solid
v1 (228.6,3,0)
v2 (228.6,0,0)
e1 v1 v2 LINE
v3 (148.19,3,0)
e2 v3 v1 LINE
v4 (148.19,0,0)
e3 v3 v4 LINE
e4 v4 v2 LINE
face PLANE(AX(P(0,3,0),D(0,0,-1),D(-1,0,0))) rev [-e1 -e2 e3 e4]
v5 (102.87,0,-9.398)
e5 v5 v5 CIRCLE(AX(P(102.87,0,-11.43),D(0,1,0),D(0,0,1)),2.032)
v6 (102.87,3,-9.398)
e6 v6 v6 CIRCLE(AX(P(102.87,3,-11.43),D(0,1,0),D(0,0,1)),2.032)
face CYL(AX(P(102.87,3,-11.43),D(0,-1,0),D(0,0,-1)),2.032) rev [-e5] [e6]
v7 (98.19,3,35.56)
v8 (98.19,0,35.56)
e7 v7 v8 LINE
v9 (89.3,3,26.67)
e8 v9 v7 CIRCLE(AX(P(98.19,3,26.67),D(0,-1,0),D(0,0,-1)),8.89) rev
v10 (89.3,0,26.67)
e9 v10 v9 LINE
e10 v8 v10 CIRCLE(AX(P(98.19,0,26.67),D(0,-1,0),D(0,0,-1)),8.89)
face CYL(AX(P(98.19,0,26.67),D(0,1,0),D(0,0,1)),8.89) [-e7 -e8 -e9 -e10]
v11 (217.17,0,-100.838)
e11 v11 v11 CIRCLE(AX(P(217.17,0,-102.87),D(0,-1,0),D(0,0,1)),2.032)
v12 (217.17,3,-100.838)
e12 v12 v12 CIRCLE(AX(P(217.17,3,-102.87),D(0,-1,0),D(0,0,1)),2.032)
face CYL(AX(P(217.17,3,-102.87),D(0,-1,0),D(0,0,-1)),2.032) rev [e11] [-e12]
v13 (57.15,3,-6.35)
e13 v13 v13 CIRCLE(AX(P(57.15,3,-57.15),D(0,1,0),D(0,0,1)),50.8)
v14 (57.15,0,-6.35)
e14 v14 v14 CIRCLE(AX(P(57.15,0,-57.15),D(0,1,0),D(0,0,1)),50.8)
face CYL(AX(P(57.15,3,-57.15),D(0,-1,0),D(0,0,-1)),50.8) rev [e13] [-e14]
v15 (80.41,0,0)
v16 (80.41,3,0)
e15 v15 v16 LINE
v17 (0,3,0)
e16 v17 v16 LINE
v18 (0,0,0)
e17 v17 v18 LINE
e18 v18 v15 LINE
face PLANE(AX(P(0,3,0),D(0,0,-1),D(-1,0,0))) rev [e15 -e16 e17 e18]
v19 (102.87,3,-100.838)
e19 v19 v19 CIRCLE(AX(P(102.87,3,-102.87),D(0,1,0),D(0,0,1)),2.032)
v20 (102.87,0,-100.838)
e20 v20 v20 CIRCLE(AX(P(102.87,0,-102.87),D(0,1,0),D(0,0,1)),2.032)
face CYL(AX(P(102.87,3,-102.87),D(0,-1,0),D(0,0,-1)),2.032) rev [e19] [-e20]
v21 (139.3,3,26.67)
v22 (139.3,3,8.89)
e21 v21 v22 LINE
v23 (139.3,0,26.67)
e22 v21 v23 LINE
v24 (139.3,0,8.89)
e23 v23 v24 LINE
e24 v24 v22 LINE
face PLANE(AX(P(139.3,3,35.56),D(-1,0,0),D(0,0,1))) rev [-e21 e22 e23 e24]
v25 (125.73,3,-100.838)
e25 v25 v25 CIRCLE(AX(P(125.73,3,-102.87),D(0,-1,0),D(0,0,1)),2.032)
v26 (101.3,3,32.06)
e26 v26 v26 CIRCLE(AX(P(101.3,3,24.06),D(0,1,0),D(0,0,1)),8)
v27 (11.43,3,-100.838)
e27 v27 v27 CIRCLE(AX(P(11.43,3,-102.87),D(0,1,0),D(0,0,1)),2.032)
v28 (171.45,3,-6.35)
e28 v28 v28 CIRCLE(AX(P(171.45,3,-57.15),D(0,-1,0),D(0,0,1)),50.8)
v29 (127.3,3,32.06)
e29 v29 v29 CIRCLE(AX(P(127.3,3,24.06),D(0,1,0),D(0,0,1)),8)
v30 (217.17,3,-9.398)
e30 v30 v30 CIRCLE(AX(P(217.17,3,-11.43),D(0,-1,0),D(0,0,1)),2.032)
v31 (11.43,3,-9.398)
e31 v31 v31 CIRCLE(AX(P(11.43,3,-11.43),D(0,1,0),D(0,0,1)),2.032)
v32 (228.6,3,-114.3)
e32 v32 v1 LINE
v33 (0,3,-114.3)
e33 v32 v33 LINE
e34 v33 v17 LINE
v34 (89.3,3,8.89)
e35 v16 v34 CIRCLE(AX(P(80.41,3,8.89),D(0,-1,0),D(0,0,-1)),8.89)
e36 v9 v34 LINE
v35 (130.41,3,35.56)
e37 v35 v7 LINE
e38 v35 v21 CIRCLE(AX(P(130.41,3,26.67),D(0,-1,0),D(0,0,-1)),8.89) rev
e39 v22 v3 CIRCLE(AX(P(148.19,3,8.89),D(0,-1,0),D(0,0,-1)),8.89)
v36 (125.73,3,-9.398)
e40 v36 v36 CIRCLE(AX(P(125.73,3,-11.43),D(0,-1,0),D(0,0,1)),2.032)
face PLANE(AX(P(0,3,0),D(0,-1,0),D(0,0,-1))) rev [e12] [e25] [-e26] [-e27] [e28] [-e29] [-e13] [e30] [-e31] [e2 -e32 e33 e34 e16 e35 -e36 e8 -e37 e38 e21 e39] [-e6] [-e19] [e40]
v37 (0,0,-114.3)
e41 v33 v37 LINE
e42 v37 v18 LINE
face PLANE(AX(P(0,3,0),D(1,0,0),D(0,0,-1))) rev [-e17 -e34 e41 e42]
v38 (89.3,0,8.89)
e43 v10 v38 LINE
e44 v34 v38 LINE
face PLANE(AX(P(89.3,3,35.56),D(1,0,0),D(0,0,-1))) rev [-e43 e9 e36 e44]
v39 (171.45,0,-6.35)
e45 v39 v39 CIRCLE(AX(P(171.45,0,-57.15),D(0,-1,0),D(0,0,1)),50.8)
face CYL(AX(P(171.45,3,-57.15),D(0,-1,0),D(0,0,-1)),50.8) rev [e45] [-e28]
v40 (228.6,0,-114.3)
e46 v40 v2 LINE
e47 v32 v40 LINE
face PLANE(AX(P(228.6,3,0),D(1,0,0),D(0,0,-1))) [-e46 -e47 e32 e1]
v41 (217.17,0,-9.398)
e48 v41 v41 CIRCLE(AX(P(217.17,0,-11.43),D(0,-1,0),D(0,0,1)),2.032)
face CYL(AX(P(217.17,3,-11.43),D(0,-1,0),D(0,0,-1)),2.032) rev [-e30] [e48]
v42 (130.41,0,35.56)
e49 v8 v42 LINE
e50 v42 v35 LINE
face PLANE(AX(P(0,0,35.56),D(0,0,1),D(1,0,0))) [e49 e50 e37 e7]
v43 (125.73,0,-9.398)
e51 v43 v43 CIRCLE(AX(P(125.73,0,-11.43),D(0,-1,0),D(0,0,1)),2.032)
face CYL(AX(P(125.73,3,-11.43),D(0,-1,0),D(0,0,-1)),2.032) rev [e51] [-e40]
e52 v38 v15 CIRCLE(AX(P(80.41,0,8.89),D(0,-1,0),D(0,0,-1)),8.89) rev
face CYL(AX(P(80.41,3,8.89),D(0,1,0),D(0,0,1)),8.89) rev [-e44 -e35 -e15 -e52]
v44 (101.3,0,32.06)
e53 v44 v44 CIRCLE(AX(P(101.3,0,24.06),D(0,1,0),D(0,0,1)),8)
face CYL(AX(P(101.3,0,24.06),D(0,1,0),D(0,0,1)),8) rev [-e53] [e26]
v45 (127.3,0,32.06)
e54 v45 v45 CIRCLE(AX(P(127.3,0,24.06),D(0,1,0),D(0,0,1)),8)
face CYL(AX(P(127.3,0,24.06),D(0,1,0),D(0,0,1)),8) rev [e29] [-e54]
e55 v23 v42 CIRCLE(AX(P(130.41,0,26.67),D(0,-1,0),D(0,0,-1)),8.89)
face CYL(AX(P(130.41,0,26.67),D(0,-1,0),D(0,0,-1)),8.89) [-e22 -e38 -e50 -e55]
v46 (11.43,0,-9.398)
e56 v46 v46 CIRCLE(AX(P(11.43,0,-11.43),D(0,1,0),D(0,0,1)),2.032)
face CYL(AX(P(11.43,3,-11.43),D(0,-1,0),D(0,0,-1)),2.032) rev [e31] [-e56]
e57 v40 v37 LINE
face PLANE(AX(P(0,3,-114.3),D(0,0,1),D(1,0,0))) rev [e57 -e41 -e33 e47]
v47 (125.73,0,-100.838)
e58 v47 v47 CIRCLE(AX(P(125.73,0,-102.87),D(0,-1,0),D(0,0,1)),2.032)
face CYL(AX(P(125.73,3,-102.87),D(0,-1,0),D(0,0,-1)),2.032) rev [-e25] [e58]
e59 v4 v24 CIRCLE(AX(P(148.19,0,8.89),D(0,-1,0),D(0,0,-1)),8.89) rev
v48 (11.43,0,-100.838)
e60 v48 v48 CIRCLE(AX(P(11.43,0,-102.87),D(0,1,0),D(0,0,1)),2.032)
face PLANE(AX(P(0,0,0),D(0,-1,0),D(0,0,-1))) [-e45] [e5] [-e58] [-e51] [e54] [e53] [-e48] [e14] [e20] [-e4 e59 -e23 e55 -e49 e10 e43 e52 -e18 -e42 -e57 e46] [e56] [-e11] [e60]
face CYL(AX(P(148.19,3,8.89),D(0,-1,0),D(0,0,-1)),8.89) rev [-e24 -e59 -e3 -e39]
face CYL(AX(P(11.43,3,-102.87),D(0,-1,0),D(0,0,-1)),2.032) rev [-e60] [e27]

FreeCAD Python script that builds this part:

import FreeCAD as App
import Part
import Sketcher
Q = App.Units.Quantity


def edges_at(feature, points):
    """Names of the edges that pass closest to the given points."""
    edges = feature.Shape.Edges
    near = lambda p: min(range(len(edges)), key=lambda i: edges[i].distToShape(Part.Vertex(*p))[0])
    return sorted({f"Edge{near(p) + 1}" for p in points})

doc = App.newDocument("Part")
body = doc.addObject("PartDesign::Body", "Body")

sketch1 = doc.addObject("Sketcher::SketchObject", "Sketch")
body.addObject(sketch1)
sketch1.AttachmentSupport = (doc.XZ_Plane, [""])
sketch1.MapMode = "FlatFace"
sketch1.addGeometry([
    Part.LineSegment(App.Vector(0, -114.3, 0), App.Vector(0, 0, 0)),
    Part.LineSegment(App.Vector(0, 0, 0), App.Vector(114.3, 0, 0)),
    Part.LineSegment(App.Vector(114.3, 0, 0), App.Vector(114.3, -114.3, 0)),
    Part.LineSegment(App.Vector(114.3, -114.3, 0), App.Vector(0, -114.3, 0)),
    Part.Circle(App.Vector(11.4, -11.4, 0), App.Vector(0, 0, 1), 2),
    Part.Circle(App.Vector(57.1, -57.1, 0), App.Vector(0, 0, 1), 50.8),
    Part.Circle(App.Vector(102.9, -11.4, 0), App.Vector(0, 0, 1), 2),
    Part.Circle(App.Vector(11.4, -102.9, 0), App.Vector(0, 0, 1), 2),
    Part.Circle(App.Vector(102.9, -102.9, 0), App.Vector(0, 0, 1), 2),
], False)
sketch1.addConstraint([
    Sketcher.Constraint("Coincident", 0, 2, 1, 1),
    Sketcher.Constraint("Coincident", 1, 2, 2, 1),
    Sketcher.Constraint("Coincident", 2, 2, 3, 1),
    Sketcher.Constraint("Coincident", 3, 2, 0, 1),
    Sketcher.Constraint("Vertical", 0),
    Sketcher.Constraint("Horizontal", 1),
    Sketcher.Constraint("Vertical", 2),
    Sketcher.Constraint("Horizontal", 3),
    Sketcher.Constraint("Coincident", 0, 2, -1, 1),
    Sketcher.Constraint("Equal", 4, 6),
    Sketcher.Constraint("Equal", 6, 7),
    Sketcher.Constraint("Equal", 7, 8),
    Sketcher.Constraint("Horizontal", 4, 3, 6, 3),
    Sketcher.Constraint("Horizontal", 7, 3, 8, 3),
    Sketcher.Constraint("Vertical", 4, 3, 7, 3),
    Sketcher.Constraint("Vertical", 6, 3, 8, 3),
    Sketcher.Constraint("Equal", 3, 0),
    Sketcher.Constraint("Diameter", 5, Q("4 in")),
    Sketcher.Constraint("Diameter", 4, Q("0.16 in")),
    Sketcher.Constraint("DistanceX", 1, 1, 1, 2, Q("4.5 in")),
    Sketcher.Constraint("DistanceX", 4, 3, 5, 3, Q("1.8 in")),
    Sketcher.Constraint("DistanceY", 5, 3, 4, 3, Q("1.8 in")),
    Sketcher.Constraint("DistanceX", 5, 3, 6, 3, Q("1.8 in")),
    Sketcher.Constraint("DistanceY", 7, 3, 5, 3, Q("1.8 in")),
    Sketcher.Constraint("DistanceX", -1, 1, 4, 3, Q("0.45 in")),
    Sketcher.Constraint("DistanceY", 4, 3, -1, 1, Q("0.45 in")),
])
pad1 = doc.addObject("PartDesign::Pad", "Pad")
body.addObject(pad1)
pad1.Profile = sketch1
pad1.Length = 3
pad1.Reversed = True
doc.recompute()

datumplane = doc.addObject("PartDesign::Plane", "DatumPlane")
body.addObject(datumplane)
datumplane.AttachmentSupport = (doc.YZ_Plane, [""])
datumplane.MapMode = "FlatFace"
datumplane.AttachmentOffset = App.Placement(App.Vector(0, 0, 4.5 * 25.4), App.Rotation())
mirrored = doc.addObject("PartDesign::Mirrored", "Mirrored")
body.addObject(mirrored)
mirrored.Originals = [pad1]
mirrored.MirrorPlane = (datumplane, [""])
body.Tip = mirrored

sketch2 = doc.addObject("Sketcher::SketchObject", "Sketch001")
body.addObject(sketch2)
sketch2.AttachmentSupport = (doc.XY_Plane, [""])
sketch2.MapMode = "FlatFace"
sketch2.addGeometry([
    Part.LineSegment(App.Vector(89.3, 3, 0), App.Vector(89.3, 0, 0)),
    Part.LineSegment(App.Vector(89.3, 0, 0), App.Vector(139.3, 0, 0)),
    Part.LineSegment(App.Vector(139.3, 0, 0), App.Vector(139.3, 3, 0)),
    Part.LineSegment(App.Vector(139.3, 3, 0), App.Vector(89.3, 3, 0)),
], False)
sketch2.addConstraint([
    Sketcher.Constraint("Coincident", 0, 2, 1, 1),
    Sketcher.Constraint("Coincident", 1, 2, 2, 1),
    Sketcher.Constraint("Coincident", 2, 2, 3, 1),
    Sketcher.Constraint("Coincident", 3, 2, 0, 1),
    Sketcher.Constraint("Vertical", 0),
    Sketcher.Constraint("Horizontal", 1),
    Sketcher.Constraint("Vertical", 2),
    Sketcher.Constraint("Horizontal", 3),
    Sketcher.Constraint("PointOnObject", 0, 2, -1),
    Sketcher.Constraint("DistanceX", 1, 1, 1, 2, Q("50 mm")),
    Sketcher.Constraint("DistanceY", 0, 2, 0, 1, Q("3 mm")),
    Sketcher.Constraint("DistanceX", -1, 1, 0, 2, Q("89.3 mm")),
])
pad2 = doc.addObject("PartDesign::Pad", "Pad001")
body.addObject(pad2)
pad2.Profile = sketch2
pad2.Length = Q("1.4 in")

sketch3 = doc.addObject("Sketcher::SketchObject", "Sketch002")
body.addObject(sketch3)
sketch3.AttachmentSupport = (doc.XZ_Plane, [""])
sketch3.MapMode = "FlatFace"
sketch3.AttachmentOffset = App.Placement(App.Vector(0, 0, -3), App.Rotation())
sketch3.addGeometry([
    Part.Circle(App.Vector(101, 24, 0), App.Vector(0, 0, 1), 8),
    Part.Circle(App.Vector(127, 24, 0), App.Vector(0, 0, 1), 8),
], False)
sketch3.addConstraint([
    Sketcher.Constraint("Equal", 0, 1),
    Sketcher.Constraint("Horizontal", 0, 3, 1, 3),
    Sketcher.Constraint("Diameter", 0, Q("16 mm")),
    Sketcher.Constraint("DistanceX", -1, 1, 0, 3, Q("101.3 mm")),
    Sketcher.Constraint("DistanceY", -1, 1, 0, 3, Q("24.06 mm")),
    Sketcher.Constraint("DistanceX", -1, 1, 1, 3, Q("127.3 mm")),
])
pocket1 = doc.addObject("PartDesign::Pocket", "Pocket")
body.addObject(pocket1)
pocket1.Profile = sketch3
pocket1.Type = "ThroughAll"
pocket1.Reversed = True
doc.recompute()

fillet = doc.addObject("PartDesign::Fillet", "Fillet")
body.addObject(fillet)
fillet.Base = (pocket1, edges_at(pocket1, [
    (139.3, 1.5, 0),
    (89.3, 1.5, 0),
    (139.3, 1.5, 35.56),
    (89.3, 1.5, 35.56),
]))
fillet.Radius = Q("0.35 in")

doc.recompute()
